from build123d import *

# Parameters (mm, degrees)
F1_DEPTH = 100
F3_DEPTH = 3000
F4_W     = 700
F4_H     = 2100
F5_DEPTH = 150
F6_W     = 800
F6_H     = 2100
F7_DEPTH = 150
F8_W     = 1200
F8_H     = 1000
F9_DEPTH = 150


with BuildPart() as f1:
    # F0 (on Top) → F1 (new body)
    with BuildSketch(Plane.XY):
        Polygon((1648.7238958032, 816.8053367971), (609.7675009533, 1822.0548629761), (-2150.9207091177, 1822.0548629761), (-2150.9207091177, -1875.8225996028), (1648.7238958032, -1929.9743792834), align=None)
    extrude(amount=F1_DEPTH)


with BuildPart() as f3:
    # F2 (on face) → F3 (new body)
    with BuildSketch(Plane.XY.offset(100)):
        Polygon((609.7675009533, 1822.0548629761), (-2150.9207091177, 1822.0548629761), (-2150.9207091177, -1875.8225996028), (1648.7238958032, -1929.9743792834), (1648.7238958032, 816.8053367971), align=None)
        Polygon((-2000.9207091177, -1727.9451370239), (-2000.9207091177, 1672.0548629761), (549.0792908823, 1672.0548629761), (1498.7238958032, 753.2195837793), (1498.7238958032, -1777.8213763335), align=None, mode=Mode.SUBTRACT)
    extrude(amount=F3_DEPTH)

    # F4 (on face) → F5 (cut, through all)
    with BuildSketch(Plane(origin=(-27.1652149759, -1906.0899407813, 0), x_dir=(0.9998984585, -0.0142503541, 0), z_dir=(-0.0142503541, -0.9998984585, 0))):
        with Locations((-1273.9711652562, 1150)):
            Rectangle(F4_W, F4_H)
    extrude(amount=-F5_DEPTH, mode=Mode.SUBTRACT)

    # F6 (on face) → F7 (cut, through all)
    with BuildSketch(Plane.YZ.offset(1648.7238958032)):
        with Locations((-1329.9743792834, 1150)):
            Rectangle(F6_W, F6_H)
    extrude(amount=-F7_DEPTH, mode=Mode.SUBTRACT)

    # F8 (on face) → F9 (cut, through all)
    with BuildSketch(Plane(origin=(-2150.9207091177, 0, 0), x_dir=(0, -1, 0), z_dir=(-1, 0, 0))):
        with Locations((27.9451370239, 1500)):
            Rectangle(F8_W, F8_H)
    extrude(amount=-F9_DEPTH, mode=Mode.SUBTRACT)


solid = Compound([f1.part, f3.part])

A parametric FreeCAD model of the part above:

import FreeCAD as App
import Part
import Sketcher
from FreeCAD import Vector
Q = App.Units.Quantity

doc = App.newDocument("Part")
body = doc.addObject("PartDesign::Body", "Body")

sketch1 = body.newObject("Sketcher::SketchObject", "Sketch")
sketch1.AttachmentSupport = (doc.getObject("XY_Plane"), [""])
sketch1.MapMode = "FlatFace"
sketch1.addGeometry([
    Part.LineSegment(Vector(1649, 817, 0), Vector(610, 1822, 0)),
    Part.LineSegment(Vector(610, 1822, 0), Vector(-2151, 1822, 0)),
    Part.LineSegment(Vector(-2151, 1822, 0), Vector(-2151, -1876, 0)),
    Part.LineSegment(Vector(-2151, -1876, 0), Vector(1649, -1930, 0)),
    Part.LineSegment(Vector(1649, -1930, 0), Vector(1649, 817, 0)),
], False)
sketch1.addConstraint([
    Sketcher.Constraint("Coincident", 0, 2, 1, 1),
    Sketcher.Constraint("Coincident", 1, 2, 2, 1),
    Sketcher.Constraint("Coincident", 2, 2, 3, 1),
    Sketcher.Constraint("Coincident", 3, 2, 4, 1),
    Sketcher.Constraint("Coincident", 4, 2, 0, 1),
    Sketcher.Constraint("Horizontal", 1),
    Sketcher.Constraint("Vertical", 2),
    Sketcher.Constraint("Vertical", 4),
    Sketcher.Constraint("DistanceX", 1, 2, 1, 1, Q("2760.68821 mm")),
    Sketcher.Constraint("DistanceX", -1, 1, 0, 2, Q("609.767501 mm")),
    Sketcher.Constraint("DistanceY", 2, 2, -1, 1, Q("1875.8226 mm")),
    Sketcher.Constraint("DistanceY", 2, 2, 2, 1, Q("3697.877463 mm")),
    Sketcher.Constraint("DistanceY", 4, 1, 4, 2, Q("2746.779716 mm")),
    Sketcher.Constraint("DistanceY", 3, 2, -1, 1, Q("1929.974379 mm")),
    Sketcher.Constraint("Distance", 0, Q("1445.668358 mm")),
])
pad1 = body.newObject("PartDesign::Pad", "Pad")
pad1.Profile = sketch1
pad1.Length = 100
body2 = doc.addObject("PartDesign::Body", "Body001")

sketch2 = body2.newObject("Sketcher::SketchObject", "Sketch001")
sketch2.AttachmentSupport = (doc.getObject("XY_Plane001"), [""])
sketch2.MapMode = "FlatFace"
sketch2.AttachmentOffset = App.Placement(Vector(0, 0, 100), App.Rotation())
sketch2.addGeometry([
    Part.LineSegment(Vector(609.767501, 1822.054863, 0), Vector(-2150.920709, 1822.054863, 0)),
    Part.LineSegment(Vector(-2150.920709, 1822.054863, 0), Vector(-2150.920709, -1875.8226, 0)),
    Part.LineSegment(Vector(-2150.920709, -1875.8226, 0), Vector(1648.723896, -1929.974379, 0)),
    Part.LineSegment(Vector(1648.723896, -1929.974379, 0), Vector(1648.723896, 816.805337, 0)),
    Part.LineSegment(Vector(1648.723896, 816.805337, 0), Vector(609.767501, 1822.054863, 0)),
    Part.LineSegment(Vector(1498.723896, -1777.821376, 0), Vector(-2000.920709, -1727.945137, 0)),
    Part.LineSegment(Vector(-2000.920709, -1727.945137, 0), Vector(-2000.920709, 1672.054863, 0)),
    Part.LineSegment(Vector(-2000.920709, 1672.054863, 0), Vector(549.079291, 1672.054863, 0)),
    Part.LineSegment(Vector(549.079291, 1672.054863, 0), Vector(1498.723896, 753.219584, 0)),
    Part.LineSegment(Vector(1498.723896, 753.219584, 0), Vector(1498.723896, -1777.821376, 0)),
], False)
sketch2.addConstraint([
    Sketcher.Constraint("Coincident", 0, 2, 1, 1),
    Sketcher.Constraint("Coincident", 1, 2, 2, 1),
    Sketcher.Constraint("Coincident", 2, 2, 3, 1),
    Sketcher.Constraint("Coincident", 3, 2, 4, 1),
    Sketcher.Constraint("Coincident", 4, 2, 0, 1),
    Sketcher.Constraint("Coincident", 5, 2, 6, 1),
    Sketcher.Constraint("Coincident", 6, 2, 7, 1),
    Sketcher.Constraint("Coincident", 7, 2, 8, 1),
    Sketcher.Constraint("Coincident", 8, 2, 9, 1),
    Sketcher.Constraint("Coincident", 9, 2, 5, 1),
    Sketcher.Constraint("Horizontal", 0),
    Sketcher.Constraint("Vertical", 1),
    Sketcher.Constraint("Vertical", 3),
    Sketcher.Constraint("Vertical", 6),
    Sketcher.Constraint("Horizontal", 7),
    Sketcher.Constraint("Vertical", 9),
    Sketcher.Constraint("Parallel", 2, 5),
    Sketcher.Constraint("Parallel", 4, 8),
    Sketcher.Constraint("DistanceX", 7, 1, 7, 2, Q("2550 mm")),
    Sketcher.Constraint("DistanceY", 6, 1, 6, 2, Q("3400 mm")),
    Sketcher.Constraint("Distance", 5, Q("3500 mm")),
    Sketcher.Constraint("DistanceX", 1, 2, 5, 2, Q("150 mm")),
    Sketcher.Constraint("DistanceY", 5, 2, 0, 2, Q("3550 mm")),
    Sketcher.Constraint("DistanceX", 8, 2, 3, 2, Q("150 mm")),
    Sketcher.Constraint("DistanceX", 0, 2, 0, 1, Q("2760.68821 mm")),
    Sketcher.Constraint("DistanceY", 9, 2, 9, 1, Q("2531.04096 mm")),
    Sketcher.Constraint("DistanceY", 1, 2, -1, 1, Q("1875.8226 mm")),
    Sketcher.Constraint("DistanceX", -1, 1, 4, 2, Q("609.767501 mm")),
    Sketcher.Constraint("DistanceY", 1, 2, 1, 1, Q("3697.877463 mm")),
    Sketcher.Constraint("DistanceY", 3, 1, 3, 2, Q("2746.779716 mm")),
])
pad2 = body2.newObject("PartDesign::Pad", "Pad001")
pad2.Profile = sketch2
pad2.Length = 3000

sketch3 = body2.newObject("Sketcher::SketchObject", "Sketch002")
sketch3.Placement = App.Placement(Vector(-27.165215, -1906.089941, 0), App.Rotation(Vector(0.999898459, -0.014250354, 0), Vector(0, 0, 1.000000001), Vector(-0.014250354, -0.999898459, 0), "ZXY"))
sketch3.addGeometry([
    Part.LineSegment(Vector(-1624, 2200, 0), Vector(-1624, 100, 0)),
    Part.LineSegment(Vector(-1624, 100, 0), Vector(-924, 100, 0)),
    Part.LineSegment(Vector(-924, 100, 0), Vector(-924, 2200, 0)),
    Part.LineSegment(Vector(-924, 2200, 0), Vector(-1624, 2200, 0)),
], False)
sketch3.addConstraint([
    Sketcher.Constraint("Coincident", 0, 2, 1, 1),
    Sketcher.Constraint("Coincident", 1, 2, 2, 1),
    Sketcher.Constraint("Coincident", 2, 2, 3, 1),
    Sketcher.Constraint("Coincident", 3, 2, 0, 1),
    Sketcher.Constraint("Vertical", 0),
    Sketcher.Constraint("Horizontal", 1),
    Sketcher.Constraint("Vertical", 2),
    Sketcher.Constraint("Horizontal", 3),
    Sketcher.Constraint("DistanceX", 1, 1, 1, 2, Q("700.000001 mm")),
    Sketcher.Constraint("DistanceY", -1, 1, 0, 2, Q("100 mm")),
    Sketcher.Constraint("DistanceY", 0, 2, 0, 1, Q("2100.000004 mm")),
    Sketcher.Constraint("DistanceX", 0, 2, -1, 1, Q("1623.971167 mm")),
])
pocket1 = body2.newObject("PartDesign::Pocket", "Pocket")
pocket1.Profile = sketch3
pocket1.Length = 150

sketch4 = body2.newObject("Sketcher::SketchObject", "Sketch003")
sketch4.AttachmentSupport = (doc.getObject("YZ_Plane001"), [""])
sketch4.MapMode = "FlatFace"
sketch4.AttachmentOffset = App.Placement(Vector(0, 0, 1648.723896), App.Rotation())
sketch4.addGeometry([
    Part.LineSegment(Vector(-1730, 2200, 0), Vector(-1730, 100, 0)),
    Part.LineSegment(Vector(-1730, 100, 0), Vector(-930, 100, 0)),
    Part.LineSegment(Vector(-930, 100, 0), Vector(-930, 2200, 0)),
    Part.LineSegment(Vector(-930, 2200, 0), Vector(-1730, 2200, 0)),
], False)
sketch4.addConstraint([
    Sketcher.Constraint("Coincident", 0, 2, 1, 1),
    Sketcher.Constraint("Coincident", 1, 2, 2, 1),
    Sketcher.Constraint("Coincident", 2, 2, 3, 1),
    Sketcher.Constraint("Coincident", 3, 2, 0, 1),
    Sketcher.Constraint("Vertical", 0),
    Sketcher.Constraint("Horizontal", 1),
    Sketcher.Constraint("Vertical", 2),
    Sketcher.Constraint("Horizontal", 3),
    Sketcher.Constraint("DistanceX", 1, 1, 1, 2, Q("800 mm")),
    Sketcher.Constraint("DistanceY", 0, 2, 0, 1, Q("2100 mm")),
    Sketcher.Constraint("DistanceY", -1, 1, 0, 2, Q("100 mm")),
    Sketcher.Constraint("DistanceX", 0, 2, -1, 1, Q("1729.974379 mm")),
])
pocket2 = body2.newObject("PartDesign::Pocket", "Pocket001")
pocket2.Profile = sketch4
pocket2.Length = 150

sketch5 = body2.newObject("Sketcher::SketchObject", "Sketch004")
sketch5.AttachmentSupport = (doc.getObject("YZ_Plane001"), [""])
sketch5.MapMode = "FlatFace"
sketch5.AttachmentOffset = App.Placement(Vector(0, 0, -2150.920709), App.Rotation())
sketch5.addGeometry([
    Part.LineSegment(Vector(572, 2000, 0), Vector(572, 1000, 0)),
    Part.LineSegment(Vector(572, 1000, 0), Vector(-628, 1000, 0)),
    Part.LineSegment(Vector(-628, 1000, 0), Vector(-628, 2000, 0)),
    Part.LineSegment(Vector(-628, 2000, 0), Vector(572, 2000, 0)),
], False)
sketch5.addConstraint([
    Sketcher.Constraint("Coincident", 0, 2, 1, 1),
    Sketcher.Constraint("Coincident", 1, 2, 2, 1),
    Sketcher.Constraint("Coincident", 2, 2, 3, 1),
    Sketcher.Constraint("Coincident", 3, 2, 0, 1),
    Sketcher.Constraint("Vertical", 0),
    Sketcher.Constraint("Horizontal", 1),
    Sketcher.Constraint("Vertical", 2),
    Sketcher.Constraint("Horizontal", 3),
    Sketcher.Constraint("DistanceX", 1, 2, 1, 1, Q("1200 mm")),
    Sketcher.Constraint("DistanceY", 0, 2, 0, 1, Q("1000 mm")),
    Sketcher.Constraint("DistanceY", -1, 1, 0, 2, Q("1000 mm")),
    Sketcher.Constraint("DistanceX", -1, 1, 0, 2, Q("572.054863 mm")),
])
pocket3 = body2.newObject("PartDesign::Pocket", "Pocket002")
pocket3.Profile = sketch5
pocket3.Length = 150
pocket3.Reversed = True

doc.recompute()
